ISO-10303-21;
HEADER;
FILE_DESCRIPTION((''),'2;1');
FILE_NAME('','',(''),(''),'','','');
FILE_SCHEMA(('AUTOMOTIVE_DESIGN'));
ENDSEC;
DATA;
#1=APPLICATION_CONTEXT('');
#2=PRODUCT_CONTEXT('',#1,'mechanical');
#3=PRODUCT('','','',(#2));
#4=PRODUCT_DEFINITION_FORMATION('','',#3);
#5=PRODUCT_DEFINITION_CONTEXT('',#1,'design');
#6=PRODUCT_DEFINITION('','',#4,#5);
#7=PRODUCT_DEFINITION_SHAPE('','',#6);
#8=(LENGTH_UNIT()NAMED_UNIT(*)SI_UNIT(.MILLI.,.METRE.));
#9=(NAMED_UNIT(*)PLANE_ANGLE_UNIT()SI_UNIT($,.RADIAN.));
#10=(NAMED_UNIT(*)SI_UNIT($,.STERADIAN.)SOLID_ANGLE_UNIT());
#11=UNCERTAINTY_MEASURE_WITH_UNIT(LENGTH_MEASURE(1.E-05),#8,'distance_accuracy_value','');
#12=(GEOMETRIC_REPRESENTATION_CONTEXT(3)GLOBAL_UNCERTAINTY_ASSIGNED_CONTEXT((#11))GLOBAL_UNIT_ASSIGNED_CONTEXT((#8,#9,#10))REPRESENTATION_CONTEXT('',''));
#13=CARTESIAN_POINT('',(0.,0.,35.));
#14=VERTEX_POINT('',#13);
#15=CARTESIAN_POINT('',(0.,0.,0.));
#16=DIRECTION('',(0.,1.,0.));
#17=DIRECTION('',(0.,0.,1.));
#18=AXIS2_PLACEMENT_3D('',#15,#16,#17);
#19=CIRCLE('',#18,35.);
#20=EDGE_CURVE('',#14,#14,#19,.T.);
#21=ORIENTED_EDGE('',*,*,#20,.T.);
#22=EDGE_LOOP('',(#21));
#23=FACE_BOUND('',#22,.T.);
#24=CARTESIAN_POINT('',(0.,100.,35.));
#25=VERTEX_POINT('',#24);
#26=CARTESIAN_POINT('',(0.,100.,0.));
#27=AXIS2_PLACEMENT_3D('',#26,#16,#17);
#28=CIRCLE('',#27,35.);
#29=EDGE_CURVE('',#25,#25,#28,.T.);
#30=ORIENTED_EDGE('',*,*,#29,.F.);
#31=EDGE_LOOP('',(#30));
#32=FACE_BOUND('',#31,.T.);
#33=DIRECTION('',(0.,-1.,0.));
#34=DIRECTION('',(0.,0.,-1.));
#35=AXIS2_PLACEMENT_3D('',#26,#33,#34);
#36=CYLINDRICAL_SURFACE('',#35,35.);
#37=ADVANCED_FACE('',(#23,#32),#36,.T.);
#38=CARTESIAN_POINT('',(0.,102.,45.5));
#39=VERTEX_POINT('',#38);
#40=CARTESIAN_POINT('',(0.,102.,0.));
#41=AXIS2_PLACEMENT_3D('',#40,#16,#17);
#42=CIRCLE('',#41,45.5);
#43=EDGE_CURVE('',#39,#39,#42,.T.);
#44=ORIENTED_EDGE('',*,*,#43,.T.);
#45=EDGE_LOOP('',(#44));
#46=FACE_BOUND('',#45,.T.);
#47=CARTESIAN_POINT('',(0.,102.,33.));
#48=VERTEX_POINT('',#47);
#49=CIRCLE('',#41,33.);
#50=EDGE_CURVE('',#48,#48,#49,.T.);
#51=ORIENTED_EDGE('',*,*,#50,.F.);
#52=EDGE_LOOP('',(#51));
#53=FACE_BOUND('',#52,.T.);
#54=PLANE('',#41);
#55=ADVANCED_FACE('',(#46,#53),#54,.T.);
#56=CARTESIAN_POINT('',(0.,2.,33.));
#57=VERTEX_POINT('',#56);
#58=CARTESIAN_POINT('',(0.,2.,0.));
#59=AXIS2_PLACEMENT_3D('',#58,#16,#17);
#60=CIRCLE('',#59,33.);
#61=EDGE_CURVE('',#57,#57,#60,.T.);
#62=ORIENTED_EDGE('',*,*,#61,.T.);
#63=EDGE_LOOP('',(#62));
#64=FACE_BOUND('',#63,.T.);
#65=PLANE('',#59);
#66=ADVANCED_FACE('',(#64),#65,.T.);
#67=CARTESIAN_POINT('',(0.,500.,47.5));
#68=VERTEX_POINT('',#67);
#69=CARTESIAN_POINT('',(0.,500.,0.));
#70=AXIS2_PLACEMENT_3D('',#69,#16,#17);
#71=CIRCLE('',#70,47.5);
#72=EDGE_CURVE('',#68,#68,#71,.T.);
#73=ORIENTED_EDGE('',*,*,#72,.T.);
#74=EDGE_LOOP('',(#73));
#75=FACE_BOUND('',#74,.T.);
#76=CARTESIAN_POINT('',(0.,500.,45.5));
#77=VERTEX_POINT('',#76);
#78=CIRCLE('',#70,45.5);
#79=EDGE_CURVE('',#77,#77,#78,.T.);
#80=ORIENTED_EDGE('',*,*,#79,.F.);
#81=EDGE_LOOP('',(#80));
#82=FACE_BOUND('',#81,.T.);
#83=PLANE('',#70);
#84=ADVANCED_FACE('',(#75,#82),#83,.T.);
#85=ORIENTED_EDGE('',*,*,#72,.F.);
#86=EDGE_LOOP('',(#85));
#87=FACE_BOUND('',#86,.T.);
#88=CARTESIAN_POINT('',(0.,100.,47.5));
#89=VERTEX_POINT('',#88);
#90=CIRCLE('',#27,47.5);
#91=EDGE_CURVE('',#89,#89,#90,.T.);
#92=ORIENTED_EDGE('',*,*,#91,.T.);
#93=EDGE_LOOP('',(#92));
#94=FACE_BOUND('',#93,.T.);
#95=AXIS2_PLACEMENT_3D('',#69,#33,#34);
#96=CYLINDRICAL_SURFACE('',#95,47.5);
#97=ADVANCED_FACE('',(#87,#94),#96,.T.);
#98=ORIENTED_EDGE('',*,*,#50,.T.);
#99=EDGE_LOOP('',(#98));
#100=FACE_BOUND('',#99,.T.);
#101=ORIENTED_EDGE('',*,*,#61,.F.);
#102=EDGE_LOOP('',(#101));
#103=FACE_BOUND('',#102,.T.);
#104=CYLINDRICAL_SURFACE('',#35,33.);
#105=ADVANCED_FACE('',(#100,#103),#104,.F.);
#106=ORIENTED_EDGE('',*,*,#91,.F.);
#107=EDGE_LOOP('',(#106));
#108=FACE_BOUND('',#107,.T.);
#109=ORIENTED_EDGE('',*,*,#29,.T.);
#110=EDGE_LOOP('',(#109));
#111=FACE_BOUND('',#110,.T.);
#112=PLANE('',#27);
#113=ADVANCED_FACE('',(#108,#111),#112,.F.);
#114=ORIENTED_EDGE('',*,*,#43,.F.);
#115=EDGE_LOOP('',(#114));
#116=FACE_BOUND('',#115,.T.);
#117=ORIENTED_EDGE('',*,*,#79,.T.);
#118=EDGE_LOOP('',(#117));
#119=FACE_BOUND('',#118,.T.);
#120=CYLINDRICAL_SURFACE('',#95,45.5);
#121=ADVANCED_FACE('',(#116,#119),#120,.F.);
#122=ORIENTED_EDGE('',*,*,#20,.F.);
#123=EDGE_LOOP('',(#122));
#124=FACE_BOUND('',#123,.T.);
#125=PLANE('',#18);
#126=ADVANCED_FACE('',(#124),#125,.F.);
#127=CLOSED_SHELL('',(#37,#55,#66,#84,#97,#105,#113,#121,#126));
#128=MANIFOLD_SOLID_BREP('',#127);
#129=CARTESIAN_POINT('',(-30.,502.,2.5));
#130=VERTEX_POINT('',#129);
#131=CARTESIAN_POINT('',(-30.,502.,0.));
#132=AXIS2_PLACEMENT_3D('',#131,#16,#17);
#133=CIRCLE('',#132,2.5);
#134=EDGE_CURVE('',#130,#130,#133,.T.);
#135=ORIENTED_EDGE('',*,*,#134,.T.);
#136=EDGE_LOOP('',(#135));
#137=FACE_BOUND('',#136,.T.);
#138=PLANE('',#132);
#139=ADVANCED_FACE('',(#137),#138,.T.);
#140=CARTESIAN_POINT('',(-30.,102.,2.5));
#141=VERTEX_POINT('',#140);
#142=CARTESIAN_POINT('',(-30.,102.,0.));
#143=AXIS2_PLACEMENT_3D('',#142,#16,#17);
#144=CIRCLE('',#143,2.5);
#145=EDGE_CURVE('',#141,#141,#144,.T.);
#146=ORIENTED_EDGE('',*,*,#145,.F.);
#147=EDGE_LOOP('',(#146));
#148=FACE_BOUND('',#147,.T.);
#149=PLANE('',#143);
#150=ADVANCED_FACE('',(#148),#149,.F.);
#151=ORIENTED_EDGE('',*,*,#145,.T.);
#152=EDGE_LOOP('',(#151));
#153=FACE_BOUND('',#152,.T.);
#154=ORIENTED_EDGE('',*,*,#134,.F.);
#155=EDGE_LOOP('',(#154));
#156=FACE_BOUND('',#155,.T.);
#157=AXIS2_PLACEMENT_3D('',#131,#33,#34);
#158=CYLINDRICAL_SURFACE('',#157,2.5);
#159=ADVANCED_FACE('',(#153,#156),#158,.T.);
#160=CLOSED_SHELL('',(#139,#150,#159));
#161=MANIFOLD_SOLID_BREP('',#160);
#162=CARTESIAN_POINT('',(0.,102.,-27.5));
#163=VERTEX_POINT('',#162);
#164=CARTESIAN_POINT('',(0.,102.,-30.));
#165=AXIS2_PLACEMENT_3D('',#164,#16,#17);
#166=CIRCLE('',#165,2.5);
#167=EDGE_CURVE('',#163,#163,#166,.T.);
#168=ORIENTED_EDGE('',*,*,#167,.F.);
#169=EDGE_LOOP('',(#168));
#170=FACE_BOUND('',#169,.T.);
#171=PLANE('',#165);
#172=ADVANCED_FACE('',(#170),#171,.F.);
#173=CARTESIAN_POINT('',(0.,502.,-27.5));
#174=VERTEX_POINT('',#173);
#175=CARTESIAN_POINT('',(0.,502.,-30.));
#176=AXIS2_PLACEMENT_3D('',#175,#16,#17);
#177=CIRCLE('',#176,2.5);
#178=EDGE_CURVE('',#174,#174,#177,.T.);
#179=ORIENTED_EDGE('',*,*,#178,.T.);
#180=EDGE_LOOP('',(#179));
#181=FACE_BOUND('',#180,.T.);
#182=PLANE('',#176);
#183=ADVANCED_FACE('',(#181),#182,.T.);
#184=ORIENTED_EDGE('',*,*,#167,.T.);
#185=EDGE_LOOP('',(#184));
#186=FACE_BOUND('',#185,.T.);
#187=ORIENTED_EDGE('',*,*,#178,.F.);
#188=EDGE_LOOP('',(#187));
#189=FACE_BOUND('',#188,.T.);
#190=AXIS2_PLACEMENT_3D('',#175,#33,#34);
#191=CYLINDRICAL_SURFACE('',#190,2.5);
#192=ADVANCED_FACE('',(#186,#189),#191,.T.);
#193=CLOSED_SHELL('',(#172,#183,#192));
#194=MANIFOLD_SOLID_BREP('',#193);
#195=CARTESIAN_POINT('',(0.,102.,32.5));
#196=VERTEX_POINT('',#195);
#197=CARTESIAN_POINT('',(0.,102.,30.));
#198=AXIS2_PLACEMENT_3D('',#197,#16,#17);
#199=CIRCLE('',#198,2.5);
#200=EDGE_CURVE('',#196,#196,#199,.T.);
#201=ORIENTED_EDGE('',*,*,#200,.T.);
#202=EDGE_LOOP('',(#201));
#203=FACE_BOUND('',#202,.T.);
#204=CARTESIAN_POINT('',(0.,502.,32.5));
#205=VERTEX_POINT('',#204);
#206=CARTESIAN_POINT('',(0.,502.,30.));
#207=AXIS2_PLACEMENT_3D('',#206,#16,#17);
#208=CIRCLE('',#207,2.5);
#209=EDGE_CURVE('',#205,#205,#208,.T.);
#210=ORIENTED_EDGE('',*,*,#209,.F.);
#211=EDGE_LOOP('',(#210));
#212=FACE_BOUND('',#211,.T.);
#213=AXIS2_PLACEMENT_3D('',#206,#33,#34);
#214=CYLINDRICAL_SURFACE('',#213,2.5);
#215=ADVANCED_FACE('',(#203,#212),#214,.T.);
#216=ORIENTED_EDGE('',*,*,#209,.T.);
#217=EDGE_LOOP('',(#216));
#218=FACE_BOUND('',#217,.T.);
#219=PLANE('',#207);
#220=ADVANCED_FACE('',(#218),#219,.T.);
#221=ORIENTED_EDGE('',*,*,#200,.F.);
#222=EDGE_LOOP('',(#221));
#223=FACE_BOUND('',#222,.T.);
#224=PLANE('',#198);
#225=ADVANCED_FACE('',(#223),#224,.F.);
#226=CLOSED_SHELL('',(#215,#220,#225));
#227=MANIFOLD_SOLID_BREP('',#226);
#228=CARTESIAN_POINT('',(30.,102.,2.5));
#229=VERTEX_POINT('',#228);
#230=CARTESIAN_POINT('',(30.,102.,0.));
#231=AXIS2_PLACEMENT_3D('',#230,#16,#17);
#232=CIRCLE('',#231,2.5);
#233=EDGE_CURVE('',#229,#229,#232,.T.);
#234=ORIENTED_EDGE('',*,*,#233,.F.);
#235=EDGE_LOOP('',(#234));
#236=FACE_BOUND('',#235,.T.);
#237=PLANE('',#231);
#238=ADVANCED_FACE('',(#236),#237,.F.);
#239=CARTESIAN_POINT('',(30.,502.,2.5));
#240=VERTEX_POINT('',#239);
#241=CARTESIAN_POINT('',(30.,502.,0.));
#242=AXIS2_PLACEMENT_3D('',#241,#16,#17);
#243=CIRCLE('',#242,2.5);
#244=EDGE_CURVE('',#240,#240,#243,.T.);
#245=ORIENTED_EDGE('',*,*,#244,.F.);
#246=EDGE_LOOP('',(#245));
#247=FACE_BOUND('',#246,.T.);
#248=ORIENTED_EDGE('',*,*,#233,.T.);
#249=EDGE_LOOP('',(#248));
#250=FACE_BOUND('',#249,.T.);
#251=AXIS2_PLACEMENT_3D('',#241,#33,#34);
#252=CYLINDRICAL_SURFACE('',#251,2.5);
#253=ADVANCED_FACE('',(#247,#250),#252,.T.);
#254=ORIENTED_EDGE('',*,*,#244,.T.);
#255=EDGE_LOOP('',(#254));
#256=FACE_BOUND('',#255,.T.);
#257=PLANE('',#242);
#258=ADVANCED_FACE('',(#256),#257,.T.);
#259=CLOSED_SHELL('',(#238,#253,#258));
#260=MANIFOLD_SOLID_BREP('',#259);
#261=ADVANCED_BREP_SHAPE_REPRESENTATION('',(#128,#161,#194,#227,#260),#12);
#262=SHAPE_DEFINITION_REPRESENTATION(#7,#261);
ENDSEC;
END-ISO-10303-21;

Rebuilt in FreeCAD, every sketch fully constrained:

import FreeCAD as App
import Part
import Sketcher

V = App.Vector


def faces_at(feature, points):
    """Names of the faces that lie closest to the given points."""
    faces = feature.Shape.Faces
    near = lambda p: min(range(len(faces)), key=lambda i: faces[i].distToShape(Part.Vertex(*p))[0])
    return sorted({f"Face{near(p) + 1}" for p in points})

doc = App.newDocument("Part")
body = doc.addObject("PartDesign::Body", "Body")

sketch1 = body.newObject("Sketcher::SketchObject", "Sketch")
sketch1.AttachmentSupport = (doc.getObject("XZ_Plane"), [""])
sketch1.MapMode = "FlatFace"
sketch1.addGeometry(Part.Circle(V(0, 0, 0), V(0, 0, 1), 35), False)
sketch1.addConstraint(Sketcher.Constraint("Coincident", 0, 3, -1, 1))
sketch1.addConstraint(Sketcher.Constraint("Diameter", 0, 70.0))
pad1 = body.newObject("PartDesign::Pad", "Pad")
pad1.Profile = sketch1
pad1.Length = 100
pad1.Reversed = True

sketch2 = body.newObject("Sketcher::SketchObject", "Sketch001")
sketch2.AttachmentSupport = (doc.getObject("XZ_Plane"), [""])
sketch2.MapMode = "FlatFace"
sketch2.AttachmentOffset = App.Placement(V(0, 0, -100), App.Rotation())
sketch2.addGeometry(Part.Circle(V(0, 0, 0), V(0, 0, 1), 48), False)
sketch2.addConstraint(Sketcher.Constraint("Coincident", 0, 3, -1, 1))
sketch2.addConstraint(Sketcher.Constraint("Diameter", 0, 95.0))
pad2 = body.newObject("PartDesign::Pad", "Pad001")
pad2.Profile = sketch2
pad2.Length = 400
pad2.Reversed = True
doc.recompute()

thickness = body.newObject("PartDesign::Thickness", "Thickness")
thickness.Base = (pad2, faces_at(pad2, [(0, 500, 0)]))
thickness.Value = 2
thickness.Reversed = True
thickness.Join = "Intersection"
body2 = doc.addObject("PartDesign::Body", "Body001")

sketch3 = body2.newObject("Sketcher::SketchObject", "Sketch002")
sketch3.AttachmentSupport = (doc.getObject("XZ_Plane001"), [""])
sketch3.MapMode = "FlatFace"
sketch3.AttachmentOffset = App.Placement(V(0, 0, -102), App.Rotation())
sketch3.addGeometry(Part.Circle(V(-30, 0, 0), V(0, 0, 1), 2.5), False)
sketch3.addConstraint(Sketcher.Constraint("PointOnObject", 0, 3, -1))
sketch3.addConstraint(Sketcher.Constraint("Diameter", 0, 5.0))
sketch3.addConstraint(Sketcher.Constraint("DistanceX", 0, 3, -1, 1, 30.0))
pad3 = body2.newObject("PartDesign::Pad", "Pad002")
pad3.Profile = sketch3
pad3.Length = 400
pad3.Reversed = True
body3 = doc.addObject("PartDesign::Body", "Body002")

sketch4 = body3.newObject("Sketcher::SketchObject", "Sketch003")
sketch4.AttachmentSupport = (doc.getObject("XZ_Plane002"), [""])
sketch4.MapMode = "FlatFace"
sketch4.AttachmentOffset = App.Placement(V(0, 0, -102), App.Rotation())
sketch4.addGeometry(Part.Circle(V(0, -30, 0), V(0, 0, 1), 2.5), False)
sketch4.addConstraint(Sketcher.Constraint("PointOnObject", 0, 3, -2))
sketch4.addConstraint(Sketcher.Constraint("Diameter", 0, 5.0))
sketch4.addConstraint(Sketcher.Constraint("DistanceY", 0, 3, -1, 1, 30.0))
pad4 = body3.newObject("PartDesign::Pad", "Pad003")
pad4.Profile = sketch4
pad4.Length = 400
pad4.Reversed = True
body4 = doc.addObject("PartDesign::Body", "Body003")

sketch5 = body4.newObject("Sketcher::SketchObject", "Sketch004")
sketch5.AttachmentSupport = (doc.getObject("XZ_Plane003"), [""])
sketch5.MapMode = "FlatFace"
sketch5.AttachmentOffset = App.Placement(V(0, 0, -102), App.Rotation())
sketch5.addGeometry(Part.Circle(V(30, 0, 0), V(0, 0, 1), 2.5), False)
sketch5.addConstraint(Sketcher.Constraint("PointOnObject", 0, 3, -1))
sketch5.addConstraint(Sketcher.Constraint("Diameter", 0, 5.0))
sketch5.addConstraint(Sketcher.Constraint("DistanceX", -1, 1, 0, 3, 30.0))
pad5 = body4.newObject("PartDesign::Pad", "Pad004")
pad5.Profile = sketch5
pad5.Length = 400
pad5.Reversed = True
body5 = doc.addObject("PartDesign::Body", "Body004")

sketch6 = body5.newObject("Sketcher::SketchObject", "Sketch005")
sketch6.AttachmentSupport = (doc.getObject("XZ_Plane004"), [""])
sketch6.MapMode = "FlatFace"
sketch6.AttachmentOffset = App.Placement(V(0, 0, -102), App.Rotation())
sketch6.addGeometry(Part.Circle(V(0, 30, 0), V(0, 0, 1), 2.5), False)
sketch6.addConstraint(Sketcher.Constraint("PointOnObject", 0, 3, -2))
sketch6.addConstraint(Sketcher.Constraint("Diameter", 0, 5.0))
sketch6.addConstraint(Sketcher.Constraint("DistanceY", -1, 1, 0, 3, 30.0))
pad6 = body5.newObject("PartDesign::Pad", "Pad005")
pad6.Profile = sketch6
pad6.Length = 400
pad6.Reversed = True

doc.recompute()
